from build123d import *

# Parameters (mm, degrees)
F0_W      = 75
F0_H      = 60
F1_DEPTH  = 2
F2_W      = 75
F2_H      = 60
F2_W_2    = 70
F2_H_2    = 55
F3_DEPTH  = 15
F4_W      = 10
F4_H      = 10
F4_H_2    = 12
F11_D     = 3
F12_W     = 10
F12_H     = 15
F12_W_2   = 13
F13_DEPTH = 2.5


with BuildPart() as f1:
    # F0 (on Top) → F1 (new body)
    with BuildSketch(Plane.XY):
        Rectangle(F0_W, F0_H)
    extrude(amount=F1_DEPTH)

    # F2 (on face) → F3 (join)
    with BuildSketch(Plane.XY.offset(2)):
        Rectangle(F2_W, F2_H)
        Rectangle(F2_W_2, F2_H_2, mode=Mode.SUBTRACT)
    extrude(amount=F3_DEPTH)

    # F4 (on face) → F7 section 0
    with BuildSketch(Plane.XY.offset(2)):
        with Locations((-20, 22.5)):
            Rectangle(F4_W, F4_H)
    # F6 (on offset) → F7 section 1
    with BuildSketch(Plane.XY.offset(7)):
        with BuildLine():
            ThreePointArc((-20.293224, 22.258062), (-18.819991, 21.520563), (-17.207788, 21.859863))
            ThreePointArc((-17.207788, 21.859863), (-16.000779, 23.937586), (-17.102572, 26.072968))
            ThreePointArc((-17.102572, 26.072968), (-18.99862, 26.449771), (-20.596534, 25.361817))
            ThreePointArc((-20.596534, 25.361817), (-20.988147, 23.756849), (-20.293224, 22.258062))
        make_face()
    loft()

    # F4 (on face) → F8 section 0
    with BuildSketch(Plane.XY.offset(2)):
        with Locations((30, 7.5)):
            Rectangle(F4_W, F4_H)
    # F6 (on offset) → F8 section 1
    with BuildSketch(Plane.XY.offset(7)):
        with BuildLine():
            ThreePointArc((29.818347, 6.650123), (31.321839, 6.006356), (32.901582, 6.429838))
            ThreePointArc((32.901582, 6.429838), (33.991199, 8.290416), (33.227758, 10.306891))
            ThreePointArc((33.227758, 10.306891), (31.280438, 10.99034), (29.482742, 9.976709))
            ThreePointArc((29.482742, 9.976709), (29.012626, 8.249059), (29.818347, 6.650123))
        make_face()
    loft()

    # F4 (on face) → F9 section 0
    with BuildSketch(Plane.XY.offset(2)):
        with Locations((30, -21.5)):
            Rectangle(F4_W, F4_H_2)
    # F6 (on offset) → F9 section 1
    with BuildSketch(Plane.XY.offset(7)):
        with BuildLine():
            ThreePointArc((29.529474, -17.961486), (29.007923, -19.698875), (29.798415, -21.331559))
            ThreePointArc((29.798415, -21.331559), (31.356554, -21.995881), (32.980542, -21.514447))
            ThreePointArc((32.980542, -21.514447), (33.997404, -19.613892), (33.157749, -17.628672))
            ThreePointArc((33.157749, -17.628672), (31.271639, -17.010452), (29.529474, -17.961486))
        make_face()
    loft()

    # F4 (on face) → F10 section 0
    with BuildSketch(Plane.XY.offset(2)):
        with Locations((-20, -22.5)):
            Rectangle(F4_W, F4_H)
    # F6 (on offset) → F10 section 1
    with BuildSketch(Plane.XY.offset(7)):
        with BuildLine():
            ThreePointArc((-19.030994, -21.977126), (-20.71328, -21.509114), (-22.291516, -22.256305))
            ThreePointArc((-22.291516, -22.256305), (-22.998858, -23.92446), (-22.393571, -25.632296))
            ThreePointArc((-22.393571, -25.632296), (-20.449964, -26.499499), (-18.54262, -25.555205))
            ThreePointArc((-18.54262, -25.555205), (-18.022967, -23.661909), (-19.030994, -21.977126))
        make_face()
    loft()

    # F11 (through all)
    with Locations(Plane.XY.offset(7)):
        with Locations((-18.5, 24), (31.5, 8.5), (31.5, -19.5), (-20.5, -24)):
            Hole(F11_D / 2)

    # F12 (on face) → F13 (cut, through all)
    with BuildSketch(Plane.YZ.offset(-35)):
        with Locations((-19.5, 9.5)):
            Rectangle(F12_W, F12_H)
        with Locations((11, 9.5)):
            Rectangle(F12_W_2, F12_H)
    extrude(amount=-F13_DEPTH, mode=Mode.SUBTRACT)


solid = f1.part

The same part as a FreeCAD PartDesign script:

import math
import FreeCAD as App
import Part
import Sketcher

V = App.Vector

doc = App.newDocument("Part")
body = doc.addObject("PartDesign::Body", "Body")

sketch1 = body.newObject("Sketcher::SketchObject", "Sketch")
sketch1.AttachmentSupport = (doc.getObject("XY_Plane"), [""])
sketch1.MapMode = "FlatFace"
sketch1.addGeometry([
    Part.LineSegment(V(-38, 30, 0), V(-38, -30, 0)),
    Part.LineSegment(V(-38, -30, 0), V(38, -30, 0)),
    Part.LineSegment(V(38, -30, 0), V(38, 30, 0)),
    Part.LineSegment(V(38, 30, 0), V(-38, 30, 0)),
], False)
sketch1.addConstraint([
    Sketcher.Constraint("Coincident", 0, 2, 1, 1),
    Sketcher.Constraint("Coincident", 1, 2, 2, 1),
    Sketcher.Constraint("Coincident", 2, 2, 3, 1),
    Sketcher.Constraint("Coincident", 3, 2, 0, 1),
    Sketcher.Constraint("Vertical", 0),
    Sketcher.Constraint("Horizontal", 1),
    Sketcher.Constraint("Vertical", 2),
    Sketcher.Constraint("Horizontal", 3),
    Sketcher.Constraint("Symmetric", 0, 2, 2, 2, -1, 1),
    Sketcher.Constraint("DistanceX", 1, 1, 1, 2, 75.0),
    Sketcher.Constraint("DistanceY", 0, 2, 0, 1, 60.0),
])
pad1 = body.newObject("PartDesign::Pad", "Pad")
pad1.Profile = sketch1
pad1.Length = 2

sketch2 = body.newObject("Sketcher::SketchObject", "Sketch001")
sketch2.AttachmentSupport = (doc.getObject("XY_Plane"), [""])
sketch2.MapMode = "FlatFace"
sketch2.AttachmentOffset = App.Placement(V(0, 0, 2), App.Rotation())
sketch2.addGeometry([
    Part.LineSegment(V(-38, 30, 0), V(-38, -30, 0)),
    Part.LineSegment(V(-38, -30, 0), V(38, -30, 0)),
    Part.LineSegment(V(38, -30, 0), V(38, 30, 0)),
    Part.LineSegment(V(38, 30, 0), V(-38, 30, 0)),
    Part.LineSegment(V(35, -28, 0), V(-35, -28, 0)),
    Part.LineSegment(V(-35, -28, 0), V(-35, 28, 0)),
    Part.LineSegment(V(-35, 28, 0), V(35, 28, 0)),
    Part.LineSegment(V(35, 28, 0), V(35, -28, 0)),
], False)
sketch2.addConstraint([
    Sketcher.Constraint("Coincident", 0, 2, 1, 1),
    Sketcher.Constraint("Coincident", 1, 2, 2, 1),
    Sketcher.Constraint("Coincident", 2, 2, 3, 1),
    Sketcher.Constraint("Coincident", 3, 2, 0, 1),
    Sketcher.Constraint("Coincident", 4, 2, 5, 1),
    Sketcher.Constraint("Coincident", 5, 2, 6, 1),
    Sketcher.Constraint("Coincident", 6, 2, 7, 1),
    Sketcher.Constraint("Coincident", 7, 2, 4, 1),
    Sketcher.Constraint("Vertical", 0),
    Sketcher.Constraint("Horizontal", 1),
    Sketcher.Constraint("Vertical", 2),
    Sketcher.Constraint("Horizontal", 3),
    Sketcher.Constraint("Horizontal", 4),
    Sketcher.Constraint("Vertical", 5),
    Sketcher.Constraint("Horizontal", 6),
    Sketcher.Constraint("Vertical", 7),
    Sketcher.Constraint("Symmetric", 0, 2, 2, 2, -1, 1),
    Sketcher.Constraint("Symmetric", 4, 2, 6, 2, -1, 1),
    Sketcher.Constraint("DistanceX", 1, 1, 1, 2, 75.0),
    Sketcher.Constraint("DistanceX", 4, 2, 4, 1, 70.0),
    Sketcher.Constraint("DistanceY", 0, 2, 0, 1, 60.0),
    Sketcher.Constraint("DistanceY", 5, 1, 5, 2, 55.0),
])
pad2 = body.newObject("PartDesign::Pad", "Pad001")
pad2.Profile = sketch2
pad2.Length = 15

sketch3 = body.newObject("Sketcher::SketchObject", "Sketch002")
sketch3.AttachmentSupport = (doc.getObject("XY_Plane"), [""])
sketch3.MapMode = "FlatFace"
sketch3.AttachmentOffset = App.Placement(V(0, 0, 2), App.Rotation())
sketch3.addGeometry([
    Part.LineSegment(V(-25, 28, 0), V(-25, 18, 0)),
    Part.LineSegment(V(-25, 18, 0), V(-15, 18, 0)),
    Part.LineSegment(V(-15, 18, 0), V(-15, 28, 0)),
    Part.LineSegment(V(-15, 28, 0), V(-25, 28, 0)),
], False)
sketch3.addConstraint([
    Sketcher.Constraint("Coincident", 0, 2, 1, 1),
    Sketcher.Constraint("Coincident", 1, 2, 2, 1),
    Sketcher.Constraint("Coincident", 2, 2, 3, 1),
    Sketcher.Constraint("Coincident", 3, 2, 0, 1),
    Sketcher.Constraint("Vertical", 0),
    Sketcher.Constraint("Horizontal", 1),
    Sketcher.Constraint("Vertical", 2),
    Sketcher.Constraint("Horizontal", 3),
    Sketcher.Constraint("Equal", 3, 0),
    Sketcher.Constraint("DistanceX", 1, 1, 1, 2, 10.0),
    Sketcher.Constraint("DistanceX", 0, 2, -1, 1, 25.0),
    Sketcher.Constraint("DistanceY", -1, 1, 0, 2, 17.5),
])

sketch4 = body.newObject("Sketcher::SketchObject", "Sketch003")
sketch4.AttachmentSupport = (doc.getObject("XY_Plane"), [""])
sketch4.MapMode = "FlatFace"
sketch4.AttachmentOffset = App.Placement(V(0, 0, 7), App.Rotation())
sketch4.addGeometry([
    Part.ArcOfCircle(Part.Circle(V(-18.5, 24, 0), V(0, 0, 1), 2.5), math.radians(-136), math.radians(-59)),
    Part.ArcOfCircle(Part.Circle(V(-18.5, 24, 0), V(0, 0, 1), 2.5), math.radians(-59), math.radians(56)),
    Part.ArcOfCircle(Part.Circle(V(-18.5, 24, 0), V(0, 0, 1), 2.5), math.radians(56), math.radians(147)),
    Part.ArcOfCircle(Part.Circle(V(-18.5, 24, 0), V(0, 0, 1), 2.5), math.radians(147), math.radians(224)),
], False)
sketch4.addConstraint([
    Sketcher.Constraint("Tangent", 0, 2, 1, 1),
    Sketcher.Constraint("Tangent", 1, 2, 2, 1),
    Sketcher.Constraint("Tangent", 2, 2, 3, 1),
    Sketcher.Constraint("Tangent", 3, 2, 0, 1),
    Sketcher.Constraint("Equal", 0, 1),
    Sketcher.Constraint("Radius", 1, 2.5),
    Sketcher.Constraint("DistanceY", -1, 1, 1, 3, 24.0),
    Sketcher.Constraint("DistanceX", 0, 3, -1, 1, 18.500001),
    Sketcher.Constraint("DistanceY", 0, 2, 3, 2, 0.398199),
    Sketcher.Constraint("DistanceX", 1, 2, -1, 1, 17.102572),
    Sketcher.Constraint("DistanceX", 3, 3, 0, 2, 1.29221),
    Sketcher.Constraint("DistanceY", 0, 3, 2, 2, 1.36182),
])

additiveloft = body.newObject("PartDesign::AdditiveLoft", "AdditiveLoft")
additiveloft.Profile = sketch3
additiveloft.Sections = [sketch4]

sketch5 = body.newObject("Sketcher::SketchObject", "Sketch004")
sketch5.AttachmentSupport = (doc.getObject("XY_Plane"), [""])
sketch5.MapMode = "FlatFace"
sketch5.AttachmentOffset = App.Placement(V(0, 0, 2), App.Rotation())
sketch5.addGeometry([
    Part.LineSegment(V(25, 12, 0), V(25, 2, 0)),
    Part.LineSegment(V(25, 2, 0), V(35, 2, 0)),
    Part.LineSegment(V(35, 2, 0), V(35, 12, 0)),
    Part.LineSegment(V(35, 12, 0), V(25, 12, 0)),
], False)
sketch5.addConstraint([
    Sketcher.Constraint("Coincident", 0, 2, 1, 1),
    Sketcher.Constraint("Coincident", 1, 2, 2, 1),
    Sketcher.Constraint("Coincident", 2, 2, 3, 1),
    Sketcher.Constraint("Coincident", 3, 2, 0, 1),
    Sketcher.Constraint("Vertical", 0),
    Sketcher.Constraint("Horizontal", 1),
    Sketcher.Constraint("Vertical", 2),
    Sketcher.Constraint("Horizontal", 3),
    Sketcher.Constraint("Equal", 3, 0),
    Sketcher.Constraint("DistanceX", 1, 1, 1, 2, 10.0),
    Sketcher.Constraint("DistanceX", -1, 1, 0, 2, 25.0),
    Sketcher.Constraint("DistanceY", -1, 1, 0, 2, 2.5),
])

sketch6 = body.newObject("Sketcher::SketchObject", "Sketch005")
sketch6.AttachmentSupport = (doc.getObject("XY_Plane"), [""])
sketch6.MapMode = "FlatFace"
sketch6.AttachmentOffset = App.Placement(V(0, 0, 7), App.Rotation())
sketch6.addGeometry([
    Part.ArcOfCircle(Part.Circle(V(31.5, 8.5, 0), V(0, 0, 1), 2.5), math.radians(-132), math.radians(-56)),
    Part.ArcOfCircle(Part.Circle(V(31.5, 8.5, 0), V(0, 0, 1), 2.5), math.radians(-56), math.radians(46)),
    Part.ArcOfCircle(Part.Circle(V(31.5, 8.5, 0), V(0, 0, 1), 2.5), math.radians(46), math.radians(144)),
    Part.ArcOfCircle(Part.Circle(V(31.5, 8.5, 0), V(0, 0, 1), 2.5), math.radians(144), math.radians(228)),
], False)
sketch6.addConstraint([
    Sketcher.Constraint("Tangent", 0, 2, 1, 1),
    Sketcher.Constraint("Tangent", 1, 2, 2, 1),
    Sketcher.Constraint("Tangent", 2, 2, 3, 1),
    Sketcher.Constraint("Tangent", 3, 2, 0, 1),
    Sketcher.Constraint("Equal", 0, 1),
    Sketcher.Constraint("Radius", 0, 2.500001),
    Sketcher.Constraint("DistanceX", -1, 1, 0, 3, 31.5),
    Sketcher.Constraint("DistanceY", -1, 1, 0, 3, 8.5),
    Sketcher.Constraint("DistanceY", -1, 1, 1, 2, 10.306891),
    Sketcher.Constraint("DistanceX", -1, 1, 2, 2, 29.482742),
    Sketcher.Constraint("DistanceX", 2, 3, 0, 2, 1.401582),
    Sketcher.Constraint("DistanceX", 3, 2, 1, 3, 1.68165),
])

additiveloft2 = body.newObject("PartDesign::AdditiveLoft", "AdditiveLoft001")
additiveloft2.Profile = sketch5
additiveloft2.Sections = [sketch6]

sketch7 = body.newObject("Sketcher::SketchObject", "Sketch006")
sketch7.AttachmentSupport = (doc.getObject("XY_Plane"), [""])
sketch7.MapMode = "FlatFace"
sketch7.AttachmentOffset = App.Placement(V(0, 0, 2), App.Rotation())
sketch7.addGeometry([
    Part.LineSegment(V(25, -16, 0), V(25, -28, 0)),
    Part.LineSegment(V(25, -28, 0), V(35, -28, 0)),
    Part.LineSegment(V(35, -28, 0), V(35, -16, 0)),
    Part.LineSegment(V(35, -16, 0), V(25, -16, 0)),
], False)
sketch7.addConstraint([
    Sketcher.Constraint("Coincident", 0, 2, 1, 1),
    Sketcher.Constraint("Coincident", 1, 2, 2, 1),
    Sketcher.Constraint("Coincident", 2, 2, 3, 1),
    Sketcher.Constraint("Coincident", 3, 2, 0, 1),
    Sketcher.Constraint("Vertical", 0),
    Sketcher.Constraint("Horizontal", 1),
    Sketcher.Constraint("Vertical", 2),
    Sketcher.Constraint("Horizontal", 3),
    Sketcher.Constraint("DistanceX", 1, 1, 1, 2, 10.0),
    Sketcher.Constraint("DistanceY", 0, 2, 0, 1, 12.0),
    Sketcher.Constraint("DistanceX", -1, 1, 0, 2, 25.0),
    Sketcher.Constraint("DistanceY", 0, 2, -1, 1, 27.5),
])

sketch8 = body.newObject("Sketcher::SketchObject", "Sketch007")
sketch8.AttachmentSupport = (doc.getObject("XY_Plane"), [""])
sketch8.MapMode = "FlatFace"
sketch8.AttachmentOffset = App.Placement(V(0, 0, 7), App.Rotation())
sketch8.addGeometry([
    Part.ArcOfCircle(Part.Circle(V(31.5, -19.5, 0), V(0, 0, 1), 2.5), math.radians(142), math.radians(227)),
    Part.ArcOfCircle(Part.Circle(V(31.5, -19.5, 0), V(0, 0, 1), 2.5), math.radians(-133), math.radians(-54)),
    Part.ArcOfCircle(Part.Circle(V(31.5, -19.5, 0), V(0, 0, 1), 2.5), math.radians(-54), math.radians(48)),
    Part.ArcOfCircle(Part.Circle(V(31.5, -19.5, 0), V(0, 0, 1), 2.5), math.radians(48), math.radians(142)),
], False)
sketch8.addConstraint([
    Sketcher.Constraint("Tangent", 0, 2, 1, 1),
    Sketcher.Constraint("Tangent", 1, 2, 2, 1),
    Sketcher.Constraint("Tangent", 2, 2, 3, 1),
    Sketcher.Constraint("Tangent", 3, 2, 0, 1),
    Sketcher.Constraint("Equal", 0, 1),
    Sketcher.Constraint("Radius", 0, 2.5),
    Sketcher.Constraint("DistanceX", -1, 1, 0, 3, 31.5),
    Sketcher.Constraint("DistanceY", 0, 3, -1, 1, 19.5),
    Sketcher.Constraint("DistanceY", 0, 2, -1, 1, 21.331559),
    Sketcher.Constraint("DistanceX", -1, 1, 2, 2, 33.157749),
    Sketcher.Constraint("DistanceX", 3, 3, 1, 2, 1.480542),
    Sketcher.Constraint("DistanceX", 3, 2, 0, 2, 0.268941),
])

additiveloft3 = body.newObject("PartDesign::AdditiveLoft", "AdditiveLoft002")
additiveloft3.Profile = sketch7
additiveloft3.Sections = [sketch8]

sketch9 = body.newObject("Sketcher::SketchObject", "Sketch008")
sketch9.AttachmentSupport = (doc.getObject("XY_Plane"), [""])
sketch9.MapMode = "FlatFace"
sketch9.AttachmentOffset = App.Placement(V(0, 0, 2), App.Rotation())
sketch9.addGeometry([
    Part.LineSegment(V(-25, -18, 0), V(-25, -28, 0)),
    Part.LineSegment(V(-25, -28, 0), V(-15, -28, 0)),
    Part.LineSegment(V(-15, -28, 0), V(-15, -18, 0)),
    Part.LineSegment(V(-15, -18, 0), V(-25, -18, 0)),
], False)
sketch9.addConstraint([
    Sketcher.Constraint("Coincident", 0, 2, 1, 1),
    Sketcher.Constraint("Coincident", 1, 2, 2, 1),
    Sketcher.Constraint("Coincident", 2, 2, 3, 1),
    Sketcher.Constraint("Coincident", 3, 2, 0, 1),
    Sketcher.Constraint("Vertical", 0),
    Sketcher.Constraint("Horizontal", 1),
    Sketcher.Constraint("Vertical", 2),
    Sketcher.Constraint("Horizontal", 3),
    Sketcher.Constraint("Equal", 3, 0),
    Sketcher.Constraint("DistanceX", 1, 1, 1, 2, 10.0),
    Sketcher.Constraint("DistanceX", 0, 2, -1, 1, 25.0),
    Sketcher.Constraint("DistanceY", 0, 2, -1, 1, 27.5),
])

sketch10 = body.newObject("Sketcher::SketchObject", "Sketch009")
sketch10.AttachmentSupport = (doc.getObject("XY_Plane"), [""])
sketch10.MapMode = "FlatFace"
sketch10.AttachmentOffset = App.Placement(V(0, 0, 7), App.Rotation())
sketch10.addGeometry([
    Part.ArcOfCircle(Part.Circle(V(-20.5, -24, 0), V(0, 0, 1), 2.5), math.radians(54), math.radians(136)),
    Part.ArcOfCircle(Part.Circle(V(-20.5, -24, 0), V(0, 0, 1), 2.5), math.radians(136), math.radians(221)),
    Part.ArcOfCircle(Part.Circle(V(-20.5, -24, 0), V(0, 0, 1), 2.5), math.radians(-139), math.radians(-38)),
    Part.ArcOfCircle(Part.Circle(V(-20.5, -24, 0), V(0, 0, 1), 2.5), math.radians(-38), math.radians(54)),
], False)
sketch10.addConstraint([
    Sketcher.Constraint("Tangent", 0, 2, 1, 1),
    Sketcher.Constraint("Tangent", 1, 2, 2, 1),
    Sketcher.Constraint("Tangent", 2, 2, 3, 1),
    Sketcher.Constraint("Tangent", 3, 2, 0, 1),
    Sketcher.Constraint("Equal", 0, 2),
    Sketcher.Constraint("Radius", 0, 2.499999),
    Sketcher.Constraint("DistanceY", 0, 3, -1, 1, 23.999999),
    Sketcher.Constraint("DistanceX", 0, 3, -1, 1, 20.500001),
    Sketcher.Constraint("DistanceX", 1, 2, -1, 1, 22.393571),
    Sketcher.Constraint("DistanceX", 2, 2, -1, 1, 18.54262),
    Sketcher.Constraint("DistanceX", 0, 2, 1, 3, 1.791519),
    Sketcher.Constraint("DistanceX", 0, 2, 3, 2, 3.260522),
])

additiveloft4 = body.newObject("PartDesign::AdditiveLoft", "AdditiveLoft003")
additiveloft4.Profile = sketch9
additiveloft4.Sections = [sketch10]

sketch11 = body.newObject("Sketcher::SketchObject", "Sketch010")
sketch11.AttachmentSupport = (doc.getObject("XY_Plane"), [""])
sketch11.MapMode = "FlatFace"
sketch11.AttachmentOffset = App.Placement(V(0, 0, 7), App.Rotation())
sketch11.addGeometry([
    Part.Circle(V(-18.5, 24, 0), V(0, 0, 1), 1.5),
    Part.Circle(V(31.5, 8.5, 0), V(0, 0, 1), 1.5),
    Part.Circle(V(31.5, -19.5, 0), V(0, 0, 1), 1.5),
    Part.Circle(V(-20.5, -24, 0), V(0, 0, 1), 1.5),
], False)
sketch11.addConstraint([
    Sketcher.Constraint("Equal", 0, 1),
    Sketcher.Constraint("Equal", 1, 2),
    Sketcher.Constraint("Equal", 2, 3),
    Sketcher.Constraint("Vertical", 1, 3, 2, 3),
    Sketcher.Constraint("Diameter", 0, 3.0),
    Sketcher.Constraint("DistanceY", -1, 1, 0, 3, 24.0),
    Sketcher.Constraint("DistanceY", 3, 3, -1, 1, 24.0),
    Sketcher.Constraint("DistanceX", 0, 3, 1, 3, 50.0),
    Sketcher.Constraint("DistanceY", 2, 3, 1, 3, 28.0),
    Sketcher.Constraint("DistanceX", 3, 3, 0, 3, 2.0),
    Sketcher.Constraint("DistanceX", 0, 3, -1, 1, 18.5),
    Sketcher.Constraint("DistanceY", -1, 1, 1, 3, 8.5),
])
doc.recompute()
hole = body.newObject("PartDesign::Hole", "Hole")
hole.Profile = sketch11
hole.ThreadType = "None"
hole.Diameter = 3
hole.DepthType = "ThroughAll"

sketch12 = body.newObject("Sketcher::SketchObject", "Sketch011")
sketch12.AttachmentSupport = (doc.getObject("YZ_Plane"), [""])
sketch12.MapMode = "FlatFace"
sketch12.AttachmentOffset = App.Placement(V(0, 0, -35), App.Rotation())
sketch12.addGeometry([
    Part.LineSegment(V(-24, 17, 0), V(-24, 2, 0)),
    Part.LineSegment(V(-24, 2, 0), V(-14, 2, 0)),
    Part.LineSegment(V(-14, 2, 0), V(-14, 17, 0)),
    Part.LineSegment(V(-14, 17, 0), V(-24, 17, 0)),
    Part.LineSegment(V(4, 17, 0), V(4, 2, 0)),
    Part.LineSegment(V(4, 2, 0), V(18, 2, 0)),
    Part.LineSegment(V(18, 2, 0), V(18, 17, 0)),
    Part.LineSegment(V(18, 17, 0), V(4, 17, 0)),
], False)
sketch12.addConstraint([
    Sketcher.Constraint("Coincident", 0, 2, 1, 1),
    Sketcher.Constraint("Coincident", 1, 2, 2, 1),
    Sketcher.Constraint("Coincident", 2, 2, 3, 1),
    Sketcher.Constraint("Coincident", 3, 2, 0, 1),
    Sketcher.Constraint("Coincident", 4, 2, 5, 1),
    Sketcher.Constraint("Coincident", 5, 2, 6, 1),
    Sketcher.Constraint("Coincident", 6, 2, 7, 1),
    Sketcher.Constraint("Coincident", 7, 2, 4, 1),
    Sketcher.Constraint("Vertical", 0),
    Sketcher.Constraint("Horizontal", 1),
    Sketcher.Constraint("Vertical", 2),
    Sketcher.Constraint("Horizontal", 3),
    Sketcher.Constraint("Vertical", 4),
    Sketcher.Constraint("Horizontal", 5),
    Sketcher.Constraint("Vertical", 6),
    Sketcher.Constraint("Horizontal", 7),
    Sketcher.Constraint("Horizontal", 1, 2, 4, 2),
    Sketcher.Constraint("Horizontal", 3, 2, 6, 2),
    Sketcher.Constraint("DistanceX", 1, 1, 1, 2, 10.0),
    Sketcher.Constraint("DistanceX", 5, 1, 5, 2, 13.0),
    Sketcher.Constraint("DistanceY", 0, 2, 0, 1, 15.0),
    Sketcher.Constraint("DistanceY", -1, 1, 0, 2, 2.0),
    Sketcher.Constraint("DistanceX", 1, 2, 4, 2, 19.0),
    Sketcher.Constraint("DistanceX", 0, 2, -1, 1, 24.5),
])
pocket1 = body.newObject("PartDesign::Pocket", "Pocket")
pocket1.Profile = sketch12
pocket1.Type = "ThroughAll"

doc.recompute()
